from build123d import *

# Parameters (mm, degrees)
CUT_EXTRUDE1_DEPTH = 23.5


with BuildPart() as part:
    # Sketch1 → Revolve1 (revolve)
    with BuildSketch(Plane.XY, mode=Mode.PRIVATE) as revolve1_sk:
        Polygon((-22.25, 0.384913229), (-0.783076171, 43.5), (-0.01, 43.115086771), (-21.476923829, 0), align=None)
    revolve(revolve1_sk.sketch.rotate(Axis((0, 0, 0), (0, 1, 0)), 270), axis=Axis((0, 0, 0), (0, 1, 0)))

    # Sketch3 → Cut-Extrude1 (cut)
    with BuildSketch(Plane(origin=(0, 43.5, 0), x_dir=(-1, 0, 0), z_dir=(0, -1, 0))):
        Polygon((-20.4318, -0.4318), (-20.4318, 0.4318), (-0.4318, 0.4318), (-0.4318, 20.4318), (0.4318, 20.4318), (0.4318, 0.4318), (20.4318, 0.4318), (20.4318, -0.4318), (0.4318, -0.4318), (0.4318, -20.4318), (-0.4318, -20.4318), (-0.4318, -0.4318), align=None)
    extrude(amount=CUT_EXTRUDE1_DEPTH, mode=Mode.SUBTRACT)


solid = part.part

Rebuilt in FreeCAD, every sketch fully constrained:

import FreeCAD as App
import Part
import Sketcher
from FreeCAD import Vector

doc = App.newDocument("Part")
body = doc.addObject("PartDesign::Body", "Body")

sketch1 = body.newObject("Sketcher::SketchObject", "Sketch")
sketch1.AttachmentSupport = (doc.getObject("XY_Plane"), [""])
sketch1.MapMode = "FlatFace"
sketch1.addGeometry([
    Part.LineSegment(Vector(-0.783076, 43.5, 0), Vector(-22.25, 0.384913, 0)),
    Part.LineSegment(Vector(-22.25, 0.384913, 0), Vector(-21.476924, 0, 0)),
    Part.LineSegment(Vector(-21.476924, 0, 0), Vector(-0.01, 43.115087, 0)),
    Part.LineSegment(Vector(-0.01, 43.115087, 0), Vector(-0.783076, 43.5, 0)),
], False)
sketch1.addConstraint([
    Sketcher.Constraint("Coincident", 0, 2, 1, 1),
    Sketcher.Constraint("Coincident", 1, 2, 2, 1),
    Sketcher.Constraint("Coincident", 2, 2, 3, 1),
    Sketcher.Constraint("Coincident", 3, 2, 0, 1),
    Sketcher.Constraint("PointOnObject", 1, 2, -1),
    Sketcher.Constraint("Perpendicular", 0, 1),
    Sketcher.Constraint("Perpendicular", 1, 2),
    Sketcher.Constraint("Perpendicular", 2, 3),
    Sketcher.Constraint("DistanceY", -1, 1, 3, 2, 43.5),
    Sketcher.Constraint("DistanceX", 0, 2, -1, 1, 22.25),
    Sketcher.Constraint("DistanceX", 2, 2, -1, 1, 0.01),
    Sketcher.Constraint("Distance", 1, 0.8636),
])
revolution = body.newObject("PartDesign::Revolution", "Revolution")
revolution.Profile = sketch1
revolution.ReferenceAxis = (sketch1, ["V_Axis"])
revolution.Angle = 360

sketch2 = body.newObject("Sketcher::SketchObject", "Sketch001")
sketch2.AttachmentSupport = (doc.getObject("XZ_Plane"), [""])
sketch2.MapMode = "FlatFace"
sketch2.AttachmentOffset = App.Placement(Vector(0, 0, -43.5), App.Rotation())
sketch2.addGeometry([
    Part.LineSegment(Vector(20.4318, -0.4318, 0), Vector(20.4318, 0.4318, 0)),
    Part.LineSegment(Vector(20.4318, 0.4318, 0), Vector(0.4318, 0.4318, 0)),
    Part.LineSegment(Vector(0.4318, 0.4318, 0), Vector(0.4318, 20.4318, 0)),
    Part.LineSegment(Vector(0.4318, 20.4318, 0), Vector(-0.4318, 20.4318, 0)),
    Part.LineSegment(Vector(-0.4318, 20.4318, 0), Vector(-0.4318, 0.4318, 0)),
    Part.LineSegment(Vector(-0.4318, 0.4318, 0), Vector(-20.4318, 0.4318, 0)),
    Part.LineSegment(Vector(-20.4318, 0.4318, 0), Vector(-20.4318, -0.4318, 0)),
    Part.LineSegment(Vector(-20.4318, -0.4318, 0), Vector(-0.4318, -0.4318, 0)),
    Part.LineSegment(Vector(-0.4318, -0.4318, 0), Vector(-0.4318, -20.4318, 0)),
    Part.LineSegment(Vector(-0.4318, -20.4318, 0), Vector(0.4318, -20.4318, 0)),
    Part.LineSegment(Vector(0.4318, -20.4318, 0), Vector(0.4318, -0.4318, 0)),
    Part.LineSegment(Vector(0.4318, -0.4318, 0), Vector(20.4318, -0.4318, 0)),
], False)
sketch2.addConstraint([
    Sketcher.Constraint("Coincident", 0, 2, 1, 1),
    Sketcher.Constraint("Coincident", 1, 2, 2, 1),
    Sketcher.Constraint("Coincident", 2, 2, 3, 1),
    Sketcher.Constraint("Coincident", 3, 2, 4, 1),
    Sketcher.Constraint("Coincident", 4, 2, 5, 1),
    Sketcher.Constraint("Coincident", 5, 2, 6, 1),
    Sketcher.Constraint("Coincident", 6, 2, 7, 1),
    Sketcher.Constraint("Coincident", 7, 2, 8, 1),
    Sketcher.Constraint("Coincident", 8, 2, 9, 1),
    Sketcher.Constraint("Coincident", 9, 2, 10, 1),
    Sketcher.Constraint("Coincident", 10, 2, 11, 1),
    Sketcher.Constraint("Coincident", 11, 2, 0, 1),
    Sketcher.Constraint("Vertical", 0),
    Sketcher.Constraint("Horizontal", 1),
    Sketcher.Constraint("Vertical", 2),
    Sketcher.Constraint("Horizontal", 3),
    Sketcher.Constraint("Vertical", 4),
    Sketcher.Constraint("Horizontal", 5),
    Sketcher.Constraint("Vertical", 6),
    Sketcher.Constraint("Horizontal", 7),
    Sketcher.Constraint("Vertical", 8),
    Sketcher.Constraint("Horizontal", 9),
    Sketcher.Constraint("Vertical", 10),
    Sketcher.Constraint("Horizontal", 11),
    Sketcher.Constraint("Symmetric", 0, 2, 6, 2, -1, 1),
    Sketcher.Constraint("Symmetric", 2, 2, 8, 2, -1, 1),
    Sketcher.Constraint("Symmetric", 4, 2, 10, 2, -1, 1),
    Sketcher.Constraint("Symmetric", 1, 2, 4, 2, -2),
    Sketcher.Constraint("Equal", 9, 0),
    Sketcher.Constraint("Equal", 11, 2),
    Sketcher.Constraint("DistanceX", 1, 2, 1, 1, 20.0),
    Sketcher.Constraint("DistanceX", 3, 2, 3, 1, 0.8636),
])
pocket1 = body.newObject("PartDesign::Pocket", "Pocket")
pocket1.Profile = sketch2
pocket1.Length = 23.5
pocket1.Reversed = True

doc.recompute()
